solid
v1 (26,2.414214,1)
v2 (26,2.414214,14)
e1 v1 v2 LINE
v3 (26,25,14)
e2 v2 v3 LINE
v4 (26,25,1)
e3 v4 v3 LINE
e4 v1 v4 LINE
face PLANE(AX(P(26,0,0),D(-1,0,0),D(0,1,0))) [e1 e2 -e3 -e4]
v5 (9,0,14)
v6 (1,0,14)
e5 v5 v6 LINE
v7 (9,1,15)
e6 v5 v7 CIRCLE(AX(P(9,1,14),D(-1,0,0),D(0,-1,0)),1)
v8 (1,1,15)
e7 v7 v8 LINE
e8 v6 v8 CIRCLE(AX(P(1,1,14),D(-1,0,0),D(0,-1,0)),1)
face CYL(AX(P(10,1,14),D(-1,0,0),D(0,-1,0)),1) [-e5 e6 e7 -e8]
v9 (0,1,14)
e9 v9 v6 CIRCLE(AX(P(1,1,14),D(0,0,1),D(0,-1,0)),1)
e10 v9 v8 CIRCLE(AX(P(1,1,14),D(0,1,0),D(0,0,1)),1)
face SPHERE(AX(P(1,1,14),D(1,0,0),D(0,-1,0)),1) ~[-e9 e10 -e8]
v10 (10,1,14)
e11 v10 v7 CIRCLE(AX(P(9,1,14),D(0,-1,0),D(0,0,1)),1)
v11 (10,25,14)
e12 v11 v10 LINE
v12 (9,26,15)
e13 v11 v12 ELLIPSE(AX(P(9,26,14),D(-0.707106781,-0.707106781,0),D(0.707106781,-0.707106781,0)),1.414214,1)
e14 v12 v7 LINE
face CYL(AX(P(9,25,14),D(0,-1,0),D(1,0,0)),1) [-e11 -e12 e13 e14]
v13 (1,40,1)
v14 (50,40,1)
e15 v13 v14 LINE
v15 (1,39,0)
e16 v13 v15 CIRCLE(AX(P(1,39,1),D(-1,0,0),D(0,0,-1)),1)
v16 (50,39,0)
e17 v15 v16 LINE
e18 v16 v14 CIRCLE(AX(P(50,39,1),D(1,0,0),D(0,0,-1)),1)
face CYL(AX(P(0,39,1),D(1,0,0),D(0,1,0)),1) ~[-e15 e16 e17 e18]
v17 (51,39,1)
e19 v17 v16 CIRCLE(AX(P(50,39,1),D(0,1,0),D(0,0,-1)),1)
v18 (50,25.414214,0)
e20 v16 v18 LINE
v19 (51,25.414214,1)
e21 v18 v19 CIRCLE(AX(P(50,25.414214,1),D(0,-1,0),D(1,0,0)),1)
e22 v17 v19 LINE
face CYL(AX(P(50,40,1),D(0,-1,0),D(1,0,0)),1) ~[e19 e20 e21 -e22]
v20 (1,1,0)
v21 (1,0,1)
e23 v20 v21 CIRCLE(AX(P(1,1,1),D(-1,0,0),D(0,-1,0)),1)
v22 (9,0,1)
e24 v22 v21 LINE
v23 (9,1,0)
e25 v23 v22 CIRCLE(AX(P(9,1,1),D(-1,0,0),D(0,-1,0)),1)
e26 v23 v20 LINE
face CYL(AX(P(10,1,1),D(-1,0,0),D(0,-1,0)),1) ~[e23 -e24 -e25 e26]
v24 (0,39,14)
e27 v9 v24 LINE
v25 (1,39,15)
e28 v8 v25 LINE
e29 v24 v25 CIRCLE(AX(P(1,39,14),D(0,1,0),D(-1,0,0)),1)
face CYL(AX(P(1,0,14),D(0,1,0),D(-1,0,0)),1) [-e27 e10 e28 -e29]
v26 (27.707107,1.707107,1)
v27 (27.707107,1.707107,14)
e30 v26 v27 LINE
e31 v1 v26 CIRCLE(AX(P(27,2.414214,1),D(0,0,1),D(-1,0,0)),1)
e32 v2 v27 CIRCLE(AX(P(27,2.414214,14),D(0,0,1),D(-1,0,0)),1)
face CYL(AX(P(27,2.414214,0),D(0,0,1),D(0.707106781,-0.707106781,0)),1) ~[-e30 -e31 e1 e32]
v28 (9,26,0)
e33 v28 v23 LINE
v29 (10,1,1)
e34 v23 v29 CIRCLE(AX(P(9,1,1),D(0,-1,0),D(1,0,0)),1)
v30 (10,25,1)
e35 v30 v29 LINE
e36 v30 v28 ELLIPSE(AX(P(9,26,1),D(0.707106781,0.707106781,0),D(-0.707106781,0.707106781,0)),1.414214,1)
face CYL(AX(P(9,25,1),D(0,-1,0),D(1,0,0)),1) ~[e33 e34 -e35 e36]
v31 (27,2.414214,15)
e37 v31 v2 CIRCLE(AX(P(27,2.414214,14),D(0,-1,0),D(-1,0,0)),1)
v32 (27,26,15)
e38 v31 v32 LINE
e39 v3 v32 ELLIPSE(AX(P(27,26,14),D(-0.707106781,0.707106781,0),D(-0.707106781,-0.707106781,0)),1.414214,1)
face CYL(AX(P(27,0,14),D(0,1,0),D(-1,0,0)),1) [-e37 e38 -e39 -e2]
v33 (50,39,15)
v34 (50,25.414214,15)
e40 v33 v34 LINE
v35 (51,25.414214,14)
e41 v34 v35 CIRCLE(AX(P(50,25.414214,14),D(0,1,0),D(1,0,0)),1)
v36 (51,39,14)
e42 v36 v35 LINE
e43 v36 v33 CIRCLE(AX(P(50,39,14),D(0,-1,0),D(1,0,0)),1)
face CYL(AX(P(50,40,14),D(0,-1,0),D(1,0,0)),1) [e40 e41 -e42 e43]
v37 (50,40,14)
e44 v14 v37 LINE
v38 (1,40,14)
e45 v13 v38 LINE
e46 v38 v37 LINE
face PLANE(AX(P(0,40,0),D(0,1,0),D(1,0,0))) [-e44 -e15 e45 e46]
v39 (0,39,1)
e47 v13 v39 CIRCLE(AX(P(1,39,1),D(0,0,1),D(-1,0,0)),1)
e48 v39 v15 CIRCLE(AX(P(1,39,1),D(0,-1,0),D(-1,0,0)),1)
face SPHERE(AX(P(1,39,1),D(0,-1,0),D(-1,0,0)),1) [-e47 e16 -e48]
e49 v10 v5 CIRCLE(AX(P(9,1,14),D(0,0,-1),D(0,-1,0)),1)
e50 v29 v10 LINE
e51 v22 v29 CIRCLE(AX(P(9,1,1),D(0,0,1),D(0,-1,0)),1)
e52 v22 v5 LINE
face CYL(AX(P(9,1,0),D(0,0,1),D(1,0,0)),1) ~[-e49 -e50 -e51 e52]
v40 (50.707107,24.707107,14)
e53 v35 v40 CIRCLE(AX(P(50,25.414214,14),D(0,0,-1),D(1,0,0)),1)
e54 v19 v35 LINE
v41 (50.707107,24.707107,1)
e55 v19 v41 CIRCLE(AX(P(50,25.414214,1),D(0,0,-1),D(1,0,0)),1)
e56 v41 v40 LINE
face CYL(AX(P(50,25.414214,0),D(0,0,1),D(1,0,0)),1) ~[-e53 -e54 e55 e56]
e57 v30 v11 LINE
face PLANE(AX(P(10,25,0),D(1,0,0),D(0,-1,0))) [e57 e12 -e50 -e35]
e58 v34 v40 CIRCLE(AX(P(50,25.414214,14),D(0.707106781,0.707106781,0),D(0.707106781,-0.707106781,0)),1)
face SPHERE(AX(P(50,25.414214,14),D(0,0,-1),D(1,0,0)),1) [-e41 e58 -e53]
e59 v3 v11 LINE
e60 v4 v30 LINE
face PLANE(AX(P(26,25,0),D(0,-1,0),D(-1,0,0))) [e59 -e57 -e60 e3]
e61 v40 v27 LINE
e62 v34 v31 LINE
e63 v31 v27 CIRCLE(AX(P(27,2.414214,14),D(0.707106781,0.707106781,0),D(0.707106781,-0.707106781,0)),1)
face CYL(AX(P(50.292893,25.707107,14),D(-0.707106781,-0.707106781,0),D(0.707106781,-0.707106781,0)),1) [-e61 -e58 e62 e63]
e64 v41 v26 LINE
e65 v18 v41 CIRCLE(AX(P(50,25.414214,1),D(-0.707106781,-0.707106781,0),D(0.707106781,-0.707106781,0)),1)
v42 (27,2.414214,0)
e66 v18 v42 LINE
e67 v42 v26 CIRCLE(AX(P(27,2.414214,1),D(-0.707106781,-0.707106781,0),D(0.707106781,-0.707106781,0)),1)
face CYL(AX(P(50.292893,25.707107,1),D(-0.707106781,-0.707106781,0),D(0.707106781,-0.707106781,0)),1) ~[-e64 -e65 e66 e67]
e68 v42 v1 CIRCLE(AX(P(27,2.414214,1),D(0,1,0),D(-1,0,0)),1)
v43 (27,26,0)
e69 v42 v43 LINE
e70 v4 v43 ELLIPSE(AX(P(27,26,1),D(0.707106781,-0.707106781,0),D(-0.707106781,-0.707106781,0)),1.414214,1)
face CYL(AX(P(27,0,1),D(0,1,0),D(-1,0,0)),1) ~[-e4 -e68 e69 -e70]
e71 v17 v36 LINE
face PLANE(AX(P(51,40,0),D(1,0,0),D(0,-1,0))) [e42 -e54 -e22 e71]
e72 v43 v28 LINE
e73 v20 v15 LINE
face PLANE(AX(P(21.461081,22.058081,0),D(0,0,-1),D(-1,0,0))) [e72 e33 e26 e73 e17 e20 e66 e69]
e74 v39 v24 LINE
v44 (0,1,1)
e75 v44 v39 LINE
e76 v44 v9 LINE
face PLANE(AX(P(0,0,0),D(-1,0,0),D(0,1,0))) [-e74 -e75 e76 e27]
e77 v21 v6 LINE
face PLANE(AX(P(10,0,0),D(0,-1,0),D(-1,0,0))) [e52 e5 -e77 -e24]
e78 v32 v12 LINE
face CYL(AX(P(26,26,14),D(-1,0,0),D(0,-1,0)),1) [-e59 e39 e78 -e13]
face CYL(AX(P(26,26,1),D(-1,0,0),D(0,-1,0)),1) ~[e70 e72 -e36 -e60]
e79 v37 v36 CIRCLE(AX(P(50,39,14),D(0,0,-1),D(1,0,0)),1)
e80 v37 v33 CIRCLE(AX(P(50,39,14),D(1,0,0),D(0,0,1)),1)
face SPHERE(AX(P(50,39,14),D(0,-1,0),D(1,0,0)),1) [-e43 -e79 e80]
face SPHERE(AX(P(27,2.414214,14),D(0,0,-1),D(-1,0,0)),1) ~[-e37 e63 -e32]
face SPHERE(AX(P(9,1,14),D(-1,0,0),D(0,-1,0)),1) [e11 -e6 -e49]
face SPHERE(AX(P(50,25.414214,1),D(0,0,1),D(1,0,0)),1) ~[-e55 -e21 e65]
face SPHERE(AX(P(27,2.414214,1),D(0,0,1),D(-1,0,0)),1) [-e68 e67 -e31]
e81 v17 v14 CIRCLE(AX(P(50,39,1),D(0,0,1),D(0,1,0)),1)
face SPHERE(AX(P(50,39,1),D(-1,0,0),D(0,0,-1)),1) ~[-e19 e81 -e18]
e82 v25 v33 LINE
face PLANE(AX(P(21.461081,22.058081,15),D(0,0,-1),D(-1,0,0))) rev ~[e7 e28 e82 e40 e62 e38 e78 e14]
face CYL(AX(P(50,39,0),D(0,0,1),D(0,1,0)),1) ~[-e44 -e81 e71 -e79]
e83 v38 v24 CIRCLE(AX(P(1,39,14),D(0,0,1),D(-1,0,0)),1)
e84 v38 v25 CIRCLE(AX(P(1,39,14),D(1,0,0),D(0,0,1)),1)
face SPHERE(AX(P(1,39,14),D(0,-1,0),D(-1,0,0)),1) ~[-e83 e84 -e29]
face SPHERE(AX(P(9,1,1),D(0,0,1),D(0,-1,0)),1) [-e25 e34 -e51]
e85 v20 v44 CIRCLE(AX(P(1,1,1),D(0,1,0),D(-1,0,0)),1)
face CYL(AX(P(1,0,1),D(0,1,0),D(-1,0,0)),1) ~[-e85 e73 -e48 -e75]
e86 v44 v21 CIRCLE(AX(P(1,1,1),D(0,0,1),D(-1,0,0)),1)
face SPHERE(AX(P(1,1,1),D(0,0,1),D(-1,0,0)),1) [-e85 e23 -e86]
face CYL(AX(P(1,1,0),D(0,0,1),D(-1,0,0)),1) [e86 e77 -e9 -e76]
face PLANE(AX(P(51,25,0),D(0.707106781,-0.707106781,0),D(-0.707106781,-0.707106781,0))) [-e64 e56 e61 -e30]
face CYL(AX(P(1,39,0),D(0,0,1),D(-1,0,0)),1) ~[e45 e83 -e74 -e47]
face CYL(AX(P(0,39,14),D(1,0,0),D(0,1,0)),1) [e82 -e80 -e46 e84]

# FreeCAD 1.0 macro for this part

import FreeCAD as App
import Part
import Sketcher

V = App.Vector


def edges_at(feature, points):
    """Names of the edges that pass closest to the given points."""
    edges = feature.Shape.Edges
    near = lambda p: min(range(len(edges)), key=lambda i: edges[i].distToShape(Part.Vertex(*p))[0])
    return sorted({f"Edge{near(p) + 1}" for p in points})


def add_polygon(sketch, points):
    """Adds a closed chain of lines whose ends are joined by coincident constraints."""
    first, n = sketch.GeometryCount, len(points)
    for a, b in zip(points, points[1:] + points[:1]):
        sketch.addGeometry(Part.LineSegment(App.Vector(*a, 0), App.Vector(*b, 0)), False)
    for i in range(n):
        sketch.addConstraint(Sketcher.Constraint("Coincident", first + i, 2, first + (i + 1) % n, 1))

doc = App.newDocument("Part")
body = doc.addObject("PartDesign::Body", "Body")

sketch1 = doc.addObject("Sketcher::SketchObject", "Sketch")
body.addObject(sketch1)
sketch1.AttachmentSupport = (doc.XY_Plane, [""])
sketch1.MapMode = "FlatFace"
add_polygon(sketch1, [(0, 40), (0, 0), (10, 0), (10, 25), (26, 25), (26, 0), (51, 25), (51, 40)])
sketch1.addConstraint([
    Sketcher.Constraint("Vertical", 0),
    Sketcher.Constraint("Horizontal", 1),
    Sketcher.Constraint("Vertical", 2),
    Sketcher.Constraint("Horizontal", 3),
    Sketcher.Constraint("Vertical", 4),
    Sketcher.Constraint("Vertical", 6),
    Sketcher.Constraint("Horizontal", 7),
    Sketcher.Constraint("Coincident", 0, 2, -1, 1),
    Sketcher.Constraint("PointOnObject", 4, 2, -1),
    Sketcher.Constraint("Horizontal", 3, 2, 5, 2),
    Sketcher.Constraint("DistanceX", 1, 1, 1, 2, 10.0),
    Sketcher.Constraint("DistanceX", 3, 1, 3, 2, 16.0),
    Sketcher.Constraint("DistanceX", 7, 2, 7, 1, 51.0),
    Sketcher.Constraint("DistanceY", 0, 2, 0, 1, 40.0),
    Sketcher.Constraint("DistanceY", 2, 1, 2, 2, 25.0),
])
pad1 = doc.addObject("PartDesign::Pad", "Pad")
body.addObject(pad1)
pad1.Profile = sketch1
pad1.Length = 15
doc.recompute()

fillet = doc.addObject("PartDesign::Fillet", "Fillet")
body.addObject(fillet)
fillet.Base = (pad1, edges_at(pad1, [
    (5, 0, 15),
    (0, 0, 7.5),
    (10, 0, 7.5),
    (10, 12.5, 15),
    (18, 25, 15),
    (26, 12.5, 15),
    (38.5, 12.5, 15),
    (38.5, 12.5, 0),
    (26, 0, 7.5),
    (51, 25, 7.5),
    (0, 20, 15),
    (0, 20, 0),
    (0, 40, 7.5),
    (51, 32.5, 15),
    (18, 25, 0),
    (5, 0, 0),
    (10, 12.5, 0),
    (26, 12.5, 0),
    (25.5, 40, 0),
    (51, 32.5, 0),
    (51, 40, 7.5),
    (25.5, 40, 15),
]))
fillet.Radius = 1

doc.recompute()
